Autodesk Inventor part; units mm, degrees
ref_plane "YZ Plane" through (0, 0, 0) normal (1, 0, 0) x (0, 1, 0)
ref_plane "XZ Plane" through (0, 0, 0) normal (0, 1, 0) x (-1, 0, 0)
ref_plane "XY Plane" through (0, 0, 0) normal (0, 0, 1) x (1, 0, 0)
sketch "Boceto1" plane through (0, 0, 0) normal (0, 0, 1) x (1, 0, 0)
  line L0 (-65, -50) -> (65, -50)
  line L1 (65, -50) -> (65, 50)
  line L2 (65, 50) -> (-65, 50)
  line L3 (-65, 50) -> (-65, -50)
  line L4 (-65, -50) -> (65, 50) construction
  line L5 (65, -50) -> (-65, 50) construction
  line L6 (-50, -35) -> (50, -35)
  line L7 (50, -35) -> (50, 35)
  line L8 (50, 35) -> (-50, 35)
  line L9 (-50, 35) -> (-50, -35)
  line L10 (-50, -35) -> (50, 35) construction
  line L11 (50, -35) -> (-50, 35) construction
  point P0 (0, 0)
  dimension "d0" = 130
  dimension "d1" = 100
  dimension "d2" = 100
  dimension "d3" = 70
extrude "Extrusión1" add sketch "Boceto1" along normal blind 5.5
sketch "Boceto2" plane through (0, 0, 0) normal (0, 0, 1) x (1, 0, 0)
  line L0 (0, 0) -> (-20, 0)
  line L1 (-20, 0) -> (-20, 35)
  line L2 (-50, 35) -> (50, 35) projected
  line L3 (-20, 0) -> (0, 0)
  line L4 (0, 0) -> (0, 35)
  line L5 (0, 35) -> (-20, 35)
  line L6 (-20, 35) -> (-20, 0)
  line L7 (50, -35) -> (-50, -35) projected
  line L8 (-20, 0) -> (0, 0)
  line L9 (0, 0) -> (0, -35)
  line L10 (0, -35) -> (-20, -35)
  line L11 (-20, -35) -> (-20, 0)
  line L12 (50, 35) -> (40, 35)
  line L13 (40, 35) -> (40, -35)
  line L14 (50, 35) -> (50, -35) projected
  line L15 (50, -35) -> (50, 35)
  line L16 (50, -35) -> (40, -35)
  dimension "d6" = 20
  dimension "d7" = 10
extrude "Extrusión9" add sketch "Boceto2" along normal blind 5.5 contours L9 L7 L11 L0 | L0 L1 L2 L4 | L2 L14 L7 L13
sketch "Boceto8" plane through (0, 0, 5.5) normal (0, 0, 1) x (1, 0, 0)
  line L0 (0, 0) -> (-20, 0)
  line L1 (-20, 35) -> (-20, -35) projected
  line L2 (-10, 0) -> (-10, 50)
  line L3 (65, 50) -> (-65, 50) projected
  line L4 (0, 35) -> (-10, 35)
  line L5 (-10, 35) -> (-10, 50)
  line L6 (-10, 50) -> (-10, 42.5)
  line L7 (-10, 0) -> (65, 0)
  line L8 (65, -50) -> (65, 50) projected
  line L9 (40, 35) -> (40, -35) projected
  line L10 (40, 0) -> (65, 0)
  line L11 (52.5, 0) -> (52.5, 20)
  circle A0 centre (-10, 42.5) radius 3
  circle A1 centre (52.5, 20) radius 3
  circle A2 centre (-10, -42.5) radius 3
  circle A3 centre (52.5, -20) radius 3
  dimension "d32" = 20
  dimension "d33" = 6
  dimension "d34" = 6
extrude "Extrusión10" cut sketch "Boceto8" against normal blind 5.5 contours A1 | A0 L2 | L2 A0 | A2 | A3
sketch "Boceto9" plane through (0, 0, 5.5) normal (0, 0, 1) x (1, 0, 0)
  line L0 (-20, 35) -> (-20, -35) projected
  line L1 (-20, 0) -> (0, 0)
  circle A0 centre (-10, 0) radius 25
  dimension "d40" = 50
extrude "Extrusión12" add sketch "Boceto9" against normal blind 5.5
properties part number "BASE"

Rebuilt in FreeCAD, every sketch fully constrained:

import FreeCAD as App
import Part
import Sketcher
from FreeCAD import Vector

doc = App.newDocument("Part")
body = doc.addObject("PartDesign::Body", "Body")

# Sketch on XY plane
sketch1 = doc.addObject("Sketcher::SketchObject", "Sketch")
body.addObject(sketch1)
sketch1.AttachmentSupport = (doc.XY_Plane, [""])
sketch1.MapMode = "FlatFace"
sketch1.addGeometry([
    Part.LineSegment(Vector(-65, 50, 0), Vector(-65, -50, 0)),  # 0
    Part.LineSegment(Vector(-65, -50, 0), Vector(65, -50, 0)),  # 1
    Part.LineSegment(Vector(65, -50, 0), Vector(65, 50, 0)),  # 2
    Part.LineSegment(Vector(65, 50, 0), Vector(-65, 50, 0)),  # 3
    Part.LineSegment(Vector(50, -35, 0), Vector(-50, -35, 0)),  # 4
    Part.LineSegment(Vector(-50, -35, 0), Vector(-50, 35, 0)),  # 5
    Part.LineSegment(Vector(-50, 35, 0), Vector(50, 35, 0)),  # 6
    Part.LineSegment(Vector(50, 35, 0), Vector(50, -35, 0)),  # 7
], False)
sketch1.addConstraint([
    Sketcher.Constraint("Coincident", 0, 2, 1, 1),
    Sketcher.Constraint("Coincident", 1, 2, 2, 1),
    Sketcher.Constraint("Coincident", 2, 2, 3, 1),
    Sketcher.Constraint("Coincident", 3, 2, 0, 1),
    Sketcher.Constraint("Coincident", 4, 2, 5, 1),
    Sketcher.Constraint("Coincident", 5, 2, 6, 1),
    Sketcher.Constraint("Coincident", 6, 2, 7, 1),
    Sketcher.Constraint("Coincident", 7, 2, 4, 1),
    Sketcher.Constraint("Vertical", 0),
    Sketcher.Constraint("Horizontal", 1),
    Sketcher.Constraint("Vertical", 2),
    Sketcher.Constraint("Horizontal", 3),
    Sketcher.Constraint("Horizontal", 4),
    Sketcher.Constraint("Vertical", 5),
    Sketcher.Constraint("Horizontal", 6),
    Sketcher.Constraint("Vertical", 7),
    Sketcher.Constraint("Symmetric", 0, 2, 2, 2, -1, 1),
    Sketcher.Constraint("Symmetric", 4, 2, 6, 2, -1, 1),
    Sketcher.Constraint("Equal", 6, 0),
    Sketcher.Constraint("DistanceX", 1, 1, 1, 2, 130.0),
    Sketcher.Constraint("DistanceX", 4, 2, 4, 1, 100.0),
    Sketcher.Constraint("DistanceY", 5, 1, 5, 2, 70.0),
])
pad1 = doc.addObject("PartDesign::Pad", "Pad")
body.addObject(pad1)
pad1.Profile = sketch1
pad1.Length = 5.5

# Sketch on XY plane
sketch2 = doc.addObject("Sketcher::SketchObject", "Sketch001")
body.addObject(sketch2)
sketch2.AttachmentSupport = (doc.XY_Plane, [""])
sketch2.MapMode = "FlatFace"
sketch2.addGeometry([
    Part.LineSegment(Vector(0, -35, 0), Vector(0, 35, 0)),  # 0
    Part.LineSegment(Vector(0, 35, 0), Vector(-20, 35, 0)),  # 1
    Part.LineSegment(Vector(-20, 35, 0), Vector(-20, -35, 0)),  # 2
    Part.LineSegment(Vector(-20, -35, 0), Vector(0, -35, 0)),  # 3
    Part.LineSegment(Vector(50, 35, 0), Vector(40, 35, 0)),  # 4
    Part.LineSegment(Vector(40, 35, 0), Vector(40, -35, 0)),  # 5
    Part.LineSegment(Vector(40, -35, 0), Vector(50, -35, 0)),  # 6
    Part.LineSegment(Vector(50, -35, 0), Vector(50, 35, 0)),  # 7
], False)
sketch2.addConstraint([
    Sketcher.Constraint("Coincident", 0, 2, 1, 1),
    Sketcher.Constraint("Coincident", 1, 2, 2, 1),
    Sketcher.Constraint("Coincident", 2, 2, 3, 1),
    Sketcher.Constraint("Coincident", 3, 2, 0, 1),
    Sketcher.Constraint("Coincident", 4, 2, 5, 1),
    Sketcher.Constraint("Coincident", 5, 2, 6, 1),
    Sketcher.Constraint("Coincident", 6, 2, 7, 1),
    Sketcher.Constraint("Coincident", 7, 2, 4, 1),
    Sketcher.Constraint("Vertical", 0),
    Sketcher.Constraint("Horizontal", 1),
    Sketcher.Constraint("Vertical", 2),
    Sketcher.Constraint("Horizontal", 3),
    Sketcher.Constraint("Horizontal", 4),
    Sketcher.Constraint("Vertical", 5),
    Sketcher.Constraint("Horizontal", 6),
    Sketcher.Constraint("Vertical", 7),
    Sketcher.Constraint("Symmetric", 0, 2, 3, 2, -1, 1),
    Sketcher.Constraint("Horizontal", 1, 2, 4, 2),
    Sketcher.Constraint("Horizontal", 3, 2, 5, 2),
    Sketcher.Constraint("DistanceX", 1, 2, 1, 1, 20.0),
    Sketcher.Constraint("DistanceX", 4, 2, 4, 1, 10.0),
    Sketcher.Constraint("DistanceY", 0, 1, 0, 2, 70.0),
    Sketcher.Constraint("DistanceX", -1, 1, 4, 2, 40.0),
])
pad2 = doc.addObject("PartDesign::Pad", "Pad001")
body.addObject(pad2)
pad2.Profile = sketch2
pad2.Length = 5.5

# Sketch on XY plane
sketch3 = doc.addObject("Sketcher::SketchObject", "Sketch002")
body.addObject(sketch3)
sketch3.AttachmentSupport = (doc.XY_Plane, [""])
sketch3.MapMode = "FlatFace"
sketch3.AttachmentOffset = App.Placement(Vector(0, 0, 5.5), App.Rotation())
sketch3.addGeometry([
    Part.Circle(Vector(52.5, 20, 0), Vector(0, 0, 1), 3),
    Part.Circle(Vector(-10, 42.5, 0), Vector(0, 0, 1), 3),
    Part.Circle(Vector(-10, -42.5, 0), Vector(0, 0, 1), 3),
    Part.Circle(Vector(52.5, -20, 0), Vector(0, 0, 1), 3),
], False)
sketch3.addConstraint([
    Sketcher.Constraint("Equal", 0, 1),
    Sketcher.Constraint("Equal", 1, 2),
    Sketcher.Constraint("Equal", 2, 3),
    Sketcher.Constraint("Symmetric", 1, 3, 2, 3, -1),
    Sketcher.Constraint("Symmetric", 0, 3, 3, 3, -1),
    Sketcher.Constraint("Diameter", 0, 6.0),
    Sketcher.Constraint("DistanceY", -1, 1, 0, 3, 20.0),
    Sketcher.Constraint("DistanceX", 1, 3, -1, 1, 10.0),
    Sketcher.Constraint("DistanceY", 2, 3, 1, 3, 85.0),
    Sketcher.Constraint("DistanceX", -1, 1, 0, 3, 52.5),
])
pocket1 = doc.addObject("PartDesign::Pocket", "Pocket")
body.addObject(pocket1)
pocket1.Profile = sketch3
pocket1.Length = 5.5

# Sketch on XY plane
sketch4 = doc.addObject("Sketcher::SketchObject", "Sketch003")
body.addObject(sketch4)
sketch4.AttachmentSupport = (doc.XY_Plane, [""])
sketch4.MapMode = "FlatFace"
sketch4.AttachmentOffset = App.Placement(Vector(0, 0, 5.5), App.Rotation())
sketch4.addGeometry(Part.Circle(Vector(-10, 0, 0), Vector(0, 0, 1), 25), False)
sketch4.addConstraint([
    Sketcher.Constraint("PointOnObject", 0, 3, -1),
    Sketcher.Constraint("Diameter", 0, 50.0),
    Sketcher.Constraint("DistanceX", 0, 3, -1, 1, 10.0),
])
pad3 = doc.addObject("PartDesign::Pad", "Pad002")
body.addObject(pad3)
pad3.Profile = sketch4
pad3.Length = 5.5
pad3.Reversed = True

doc.recompute()
